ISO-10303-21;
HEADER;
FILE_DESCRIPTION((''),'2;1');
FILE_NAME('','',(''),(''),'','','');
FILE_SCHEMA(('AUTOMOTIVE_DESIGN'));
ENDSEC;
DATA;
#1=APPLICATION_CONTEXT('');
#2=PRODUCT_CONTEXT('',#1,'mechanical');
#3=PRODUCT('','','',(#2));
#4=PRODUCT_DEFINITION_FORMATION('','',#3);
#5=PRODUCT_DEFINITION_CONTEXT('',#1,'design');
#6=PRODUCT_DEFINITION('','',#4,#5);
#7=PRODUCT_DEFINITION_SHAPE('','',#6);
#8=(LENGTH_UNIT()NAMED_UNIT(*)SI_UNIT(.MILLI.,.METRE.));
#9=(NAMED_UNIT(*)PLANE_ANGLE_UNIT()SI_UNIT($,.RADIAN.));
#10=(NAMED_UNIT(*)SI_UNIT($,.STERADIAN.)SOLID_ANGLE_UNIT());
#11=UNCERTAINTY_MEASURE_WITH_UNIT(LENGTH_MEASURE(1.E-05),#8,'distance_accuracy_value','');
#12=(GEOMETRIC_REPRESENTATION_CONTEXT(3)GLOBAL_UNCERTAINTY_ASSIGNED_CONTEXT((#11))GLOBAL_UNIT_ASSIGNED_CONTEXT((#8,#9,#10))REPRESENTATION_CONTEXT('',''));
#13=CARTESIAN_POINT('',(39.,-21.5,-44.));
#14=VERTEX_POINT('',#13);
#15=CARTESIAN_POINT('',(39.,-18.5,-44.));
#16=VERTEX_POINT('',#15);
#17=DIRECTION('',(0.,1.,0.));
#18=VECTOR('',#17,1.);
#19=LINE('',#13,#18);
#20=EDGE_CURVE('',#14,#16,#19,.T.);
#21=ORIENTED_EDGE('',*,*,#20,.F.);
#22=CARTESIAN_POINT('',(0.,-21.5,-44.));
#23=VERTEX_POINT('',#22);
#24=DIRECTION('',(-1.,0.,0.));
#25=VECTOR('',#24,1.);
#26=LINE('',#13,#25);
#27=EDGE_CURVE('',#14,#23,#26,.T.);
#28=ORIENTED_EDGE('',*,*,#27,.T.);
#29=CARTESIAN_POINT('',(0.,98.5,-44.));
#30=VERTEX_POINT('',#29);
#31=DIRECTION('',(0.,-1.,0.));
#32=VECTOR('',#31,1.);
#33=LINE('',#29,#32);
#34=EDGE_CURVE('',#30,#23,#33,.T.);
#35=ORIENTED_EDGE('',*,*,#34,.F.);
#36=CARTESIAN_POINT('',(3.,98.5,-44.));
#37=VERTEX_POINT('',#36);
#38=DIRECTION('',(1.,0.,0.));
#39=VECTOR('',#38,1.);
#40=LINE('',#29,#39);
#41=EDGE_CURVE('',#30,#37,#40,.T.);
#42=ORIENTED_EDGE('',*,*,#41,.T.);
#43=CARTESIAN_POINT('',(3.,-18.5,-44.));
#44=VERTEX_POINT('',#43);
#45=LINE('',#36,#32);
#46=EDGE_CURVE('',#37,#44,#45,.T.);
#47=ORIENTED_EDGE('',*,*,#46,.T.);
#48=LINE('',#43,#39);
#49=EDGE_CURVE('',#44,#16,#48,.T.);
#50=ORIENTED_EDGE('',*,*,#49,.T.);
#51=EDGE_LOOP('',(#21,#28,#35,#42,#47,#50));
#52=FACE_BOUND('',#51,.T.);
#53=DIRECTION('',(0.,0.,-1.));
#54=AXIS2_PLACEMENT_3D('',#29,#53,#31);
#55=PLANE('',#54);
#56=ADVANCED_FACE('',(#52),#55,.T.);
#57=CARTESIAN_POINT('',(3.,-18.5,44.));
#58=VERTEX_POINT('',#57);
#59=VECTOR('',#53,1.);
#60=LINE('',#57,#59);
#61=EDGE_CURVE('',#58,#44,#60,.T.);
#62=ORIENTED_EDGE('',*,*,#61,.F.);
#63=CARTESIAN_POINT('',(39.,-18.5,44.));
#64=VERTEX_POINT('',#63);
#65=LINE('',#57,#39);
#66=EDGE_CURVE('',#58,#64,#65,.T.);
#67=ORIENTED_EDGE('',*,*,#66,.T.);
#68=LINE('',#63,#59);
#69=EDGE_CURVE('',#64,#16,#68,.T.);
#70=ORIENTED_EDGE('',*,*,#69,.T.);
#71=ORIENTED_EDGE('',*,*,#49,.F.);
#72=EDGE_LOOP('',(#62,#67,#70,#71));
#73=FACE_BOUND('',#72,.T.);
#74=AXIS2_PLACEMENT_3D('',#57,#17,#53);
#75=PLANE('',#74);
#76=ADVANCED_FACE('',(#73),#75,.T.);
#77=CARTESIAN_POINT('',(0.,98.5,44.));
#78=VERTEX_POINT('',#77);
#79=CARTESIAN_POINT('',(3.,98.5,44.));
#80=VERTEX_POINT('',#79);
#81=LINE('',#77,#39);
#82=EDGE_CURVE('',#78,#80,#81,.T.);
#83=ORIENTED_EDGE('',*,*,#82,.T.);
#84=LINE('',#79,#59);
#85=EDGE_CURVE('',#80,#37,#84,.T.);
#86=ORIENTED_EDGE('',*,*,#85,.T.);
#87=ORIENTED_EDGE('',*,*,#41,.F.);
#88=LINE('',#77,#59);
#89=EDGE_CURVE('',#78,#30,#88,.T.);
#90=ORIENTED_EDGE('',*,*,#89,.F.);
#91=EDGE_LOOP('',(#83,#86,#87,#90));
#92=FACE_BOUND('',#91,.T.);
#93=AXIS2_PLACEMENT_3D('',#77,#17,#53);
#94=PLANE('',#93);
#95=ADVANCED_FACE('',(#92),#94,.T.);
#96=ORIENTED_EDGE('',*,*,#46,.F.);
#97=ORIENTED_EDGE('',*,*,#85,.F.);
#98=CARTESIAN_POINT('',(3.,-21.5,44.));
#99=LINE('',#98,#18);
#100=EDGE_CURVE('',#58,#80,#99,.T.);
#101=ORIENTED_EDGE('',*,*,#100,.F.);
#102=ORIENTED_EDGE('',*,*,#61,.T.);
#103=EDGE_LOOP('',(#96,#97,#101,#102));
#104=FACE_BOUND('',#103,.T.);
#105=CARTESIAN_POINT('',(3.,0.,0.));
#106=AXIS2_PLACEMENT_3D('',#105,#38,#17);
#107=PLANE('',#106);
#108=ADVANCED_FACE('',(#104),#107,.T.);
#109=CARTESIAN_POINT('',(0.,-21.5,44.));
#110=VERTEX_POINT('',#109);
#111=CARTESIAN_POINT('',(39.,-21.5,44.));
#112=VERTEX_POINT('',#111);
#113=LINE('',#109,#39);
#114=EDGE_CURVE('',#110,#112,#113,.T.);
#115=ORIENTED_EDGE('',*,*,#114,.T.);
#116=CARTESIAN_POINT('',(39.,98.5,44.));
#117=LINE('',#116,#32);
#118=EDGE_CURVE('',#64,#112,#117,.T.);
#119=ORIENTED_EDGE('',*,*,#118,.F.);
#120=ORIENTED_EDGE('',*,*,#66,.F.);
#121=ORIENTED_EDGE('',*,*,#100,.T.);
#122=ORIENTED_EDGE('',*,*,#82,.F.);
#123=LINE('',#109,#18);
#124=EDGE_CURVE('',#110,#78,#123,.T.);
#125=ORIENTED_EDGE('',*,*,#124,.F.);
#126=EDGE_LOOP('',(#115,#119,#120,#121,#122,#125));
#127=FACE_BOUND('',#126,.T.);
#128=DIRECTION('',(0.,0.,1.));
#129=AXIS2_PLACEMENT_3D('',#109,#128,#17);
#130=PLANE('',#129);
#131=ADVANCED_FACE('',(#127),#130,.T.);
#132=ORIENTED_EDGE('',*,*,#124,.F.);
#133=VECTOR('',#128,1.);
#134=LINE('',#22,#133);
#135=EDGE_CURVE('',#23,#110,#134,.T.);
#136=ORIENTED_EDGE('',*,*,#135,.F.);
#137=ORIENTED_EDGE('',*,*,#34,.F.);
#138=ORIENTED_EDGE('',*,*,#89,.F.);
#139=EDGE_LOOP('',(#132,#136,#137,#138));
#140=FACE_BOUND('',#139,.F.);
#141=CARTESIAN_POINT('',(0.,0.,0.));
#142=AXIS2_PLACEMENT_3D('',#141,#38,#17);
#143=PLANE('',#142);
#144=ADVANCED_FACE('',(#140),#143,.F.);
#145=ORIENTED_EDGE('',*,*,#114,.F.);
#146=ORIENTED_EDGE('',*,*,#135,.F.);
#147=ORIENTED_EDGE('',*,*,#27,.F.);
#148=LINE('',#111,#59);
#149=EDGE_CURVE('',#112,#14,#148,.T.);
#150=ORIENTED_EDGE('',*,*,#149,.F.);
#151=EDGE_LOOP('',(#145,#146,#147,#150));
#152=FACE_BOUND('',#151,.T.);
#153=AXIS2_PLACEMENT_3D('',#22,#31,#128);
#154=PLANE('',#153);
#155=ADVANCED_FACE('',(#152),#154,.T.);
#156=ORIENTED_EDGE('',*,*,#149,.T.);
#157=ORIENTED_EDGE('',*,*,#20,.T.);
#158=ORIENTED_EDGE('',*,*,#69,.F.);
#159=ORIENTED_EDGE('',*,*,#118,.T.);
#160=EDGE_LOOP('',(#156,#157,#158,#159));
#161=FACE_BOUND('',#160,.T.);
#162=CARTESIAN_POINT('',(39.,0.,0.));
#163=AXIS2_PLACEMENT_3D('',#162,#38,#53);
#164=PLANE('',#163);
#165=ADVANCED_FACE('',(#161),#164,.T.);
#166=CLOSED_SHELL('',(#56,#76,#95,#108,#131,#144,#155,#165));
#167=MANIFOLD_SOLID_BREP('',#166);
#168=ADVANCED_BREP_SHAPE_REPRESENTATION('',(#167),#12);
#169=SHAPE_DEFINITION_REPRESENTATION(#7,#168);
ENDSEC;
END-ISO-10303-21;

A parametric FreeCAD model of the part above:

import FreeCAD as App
import Part
import Sketcher
from FreeCAD import Vector

doc = App.newDocument("Part")
body = doc.addObject("PartDesign::Body", "Body")

# Sketch on YZ plane
sketch1 = body.newObject("Sketcher::SketchObject", "Sketch")
sketch1.AttachmentSupport = (doc.getObject("YZ_Plane"), [""])
sketch1.MapMode = "FlatFace"
sketch1.addGeometry([
    Part.LineSegment(Vector(98, -44, 0), Vector(98, 44, 0)),
    Part.LineSegment(Vector(98, 44, 0), Vector(-22, 44, 0)),
    Part.LineSegment(Vector(-22, 44, 0), Vector(-22, -44, 0)),
    Part.LineSegment(Vector(-22, -44, 0), Vector(98, -44, 0)),
], False)
sketch1.addConstraint([
    Sketcher.Constraint("Coincident", 0, 2, 1, 1),
    Sketcher.Constraint("Coincident", 1, 2, 2, 1),
    Sketcher.Constraint("Coincident", 2, 2, 3, 1),
    Sketcher.Constraint("Coincident", 3, 2, 0, 1),
    Sketcher.Constraint("Vertical", 0),
    Sketcher.Constraint("Horizontal", 1),
    Sketcher.Constraint("Vertical", 2),
    Sketcher.Constraint("Horizontal", 3),
    Sketcher.Constraint("DistanceX", 1, 2, 1, 1, 120.0),
    Sketcher.Constraint("DistanceY", 0, 1, 0, 2, 88.0),
    Sketcher.Constraint("DistanceY", -1, 1, 0, 2, 44.0),
    Sketcher.Constraint("DistanceX", -1, 1, 0, 2, 98.5),
])
pad1 = body.newObject("PartDesign::Pad", "Pad")
pad1.Profile = sketch1
pad1.Length = 3

# Sketch on YZ plane
sketch2 = body.newObject("Sketcher::SketchObject", "Sketch001")
sketch2.AttachmentSupport = (doc.getObject("YZ_Plane"), [""])
sketch2.MapMode = "FlatFace"
sketch2.AttachmentOffset = App.Placement(Vector(0, 0, 3), App.Rotation())
sketch2.addGeometry([
    Part.LineSegment(Vector(-18.5, 44, 0), Vector(-21.5, 44, 0)),
    Part.LineSegment(Vector(-21.5, 44, 0), Vector(-21.5, -44, 0)),
    Part.LineSegment(Vector(-21.5, -44, 0), Vector(-18.5, -44, 0)),
    Part.LineSegment(Vector(-18.5, -44, 0), Vector(-18.5, 44, 0)),
], False)
sketch2.addConstraint([
    Sketcher.Constraint("Coincident", 0, 2, 1, 1),
    Sketcher.Constraint("Coincident", 1, 2, 2, 1),
    Sketcher.Constraint("Coincident", 2, 2, 3, 1),
    Sketcher.Constraint("Coincident", 3, 2, 0, 1),
    Sketcher.Constraint("Horizontal", 0),
    Sketcher.Constraint("Vertical", 1),
    Sketcher.Constraint("Horizontal", 2),
    Sketcher.Constraint("Vertical", 3),
    Sketcher.Constraint("DistanceX", 0, 2, 0, 1, 3.0),
    Sketcher.Constraint("DistanceY", 1, 2, 1, 1, 88.0),
    Sketcher.Constraint("DistanceY", -1, 1, 0, 2, 44.0),
    Sketcher.Constraint("DistanceX", 0, 2, -1, 1, 21.5),
])
pad2 = body.newObject("PartDesign::Pad", "Pad001")
pad2.Profile = sketch2
pad2.Length = 36

doc.recompute()
